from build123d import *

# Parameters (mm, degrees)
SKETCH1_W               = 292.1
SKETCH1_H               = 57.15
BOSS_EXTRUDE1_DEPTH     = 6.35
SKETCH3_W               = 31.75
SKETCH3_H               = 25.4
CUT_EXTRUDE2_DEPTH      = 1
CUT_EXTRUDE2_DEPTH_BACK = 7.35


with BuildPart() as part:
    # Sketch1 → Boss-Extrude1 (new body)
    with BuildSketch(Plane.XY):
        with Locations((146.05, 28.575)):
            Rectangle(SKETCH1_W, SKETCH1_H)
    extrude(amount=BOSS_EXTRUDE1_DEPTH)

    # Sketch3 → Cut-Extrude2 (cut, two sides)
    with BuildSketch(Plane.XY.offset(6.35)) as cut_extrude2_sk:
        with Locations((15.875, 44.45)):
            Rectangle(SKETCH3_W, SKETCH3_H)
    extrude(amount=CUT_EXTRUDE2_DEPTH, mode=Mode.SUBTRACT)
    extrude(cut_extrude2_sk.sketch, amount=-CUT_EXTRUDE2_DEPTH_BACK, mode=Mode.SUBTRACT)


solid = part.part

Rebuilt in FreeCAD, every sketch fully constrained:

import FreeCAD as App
import Part
import Sketcher
from FreeCAD import Vector
Q = App.Units.Quantity


def add_polygon(sketch, points):
    """Adds a closed chain of lines whose ends are joined by coincident constraints."""
    first, n = sketch.GeometryCount, len(points)
    for a, b in zip(points, points[1:] + points[:1]):
        sketch.addGeometry(Part.LineSegment(App.Vector(*a, 0), App.Vector(*b, 0)), False)
    for i in range(n):
        sketch.addConstraint(Sketcher.Constraint("Coincident", first + i, 2, first + (i + 1) % n, 1))

doc = App.newDocument("Part")
params = doc.addObject("Spreadsheet::Sheet", "Params")
for row, (alias, value) in enumerate([
    ("sketch1_width", "11.5 in"),
    ("sketch1_height", "2.25 in"),
    ("pad1_length", "0.25 in"),
    ("sketch2_height", "1 in"),
    ("sketch2_width", "1.25 in"),
], start=1):
    params.set(f"A{row}", alias)
    params.set(f"B{row}", "=" + value)
    params.setAlias(f"B{row}", alias)

body = doc.addObject("PartDesign::Body", "Body")

sketch1 = body.newObject("Sketcher::SketchObject", "Sketch")
sketch1.AttachmentSupport = (doc.getObject("XY_Plane"), [""])
sketch1.MapMode = "FlatFace"
add_polygon(sketch1, [(0, 57.15), (0, 0), (292.1, 0), (292.1, 57.15)])
sketch1.addConstraint(Sketcher.Constraint("Vertical", 0))
sketch1.addConstraint(Sketcher.Constraint("Horizontal", 1))
sketch1.addConstraint(Sketcher.Constraint("Vertical", 2))
sketch1.addConstraint(Sketcher.Constraint("Horizontal", 3))
sketch1.addConstraint(Sketcher.Constraint("Coincident", 0, 2, -1, 1))
sketch1.addConstraint(Sketcher.Constraint("DistanceX", 1, 1, 1, 2, Q("11.5 in")))
sketch1.addConstraint(Sketcher.Constraint("DistanceY", 0, 2, 0, 1, Q("2.25 in")))
sketch1.setExpression("Constraints[9]", "Params.sketch1_width")
sketch1.setExpression("Constraints[10]", "Params.sketch1_height")
pad1 = body.newObject("PartDesign::Pad", "Pad")
pad1.Profile = sketch1
pad1.setExpression("Length", "Params.pad1_length")

sketch2 = body.newObject("Sketcher::SketchObject", "Sketch001")
sketch2.AttachmentSupport = (doc.getObject("XY_Plane"), [""])
sketch2.MapMode = "FlatFace"
sketch2.AttachmentOffset = App.Placement(Vector(0, 0, 0.25 * 25.4), App.Rotation())
add_polygon(sketch2, [(0, 57.15), (0, 31.75), (31.75, 31.75), (31.75, 57.15)])
sketch2.addConstraint(Sketcher.Constraint("Vertical", 0))
sketch2.addConstraint(Sketcher.Constraint("Horizontal", 1))
sketch2.addConstraint(Sketcher.Constraint("Vertical", 2))
sketch2.addConstraint(Sketcher.Constraint("Horizontal", 3))
sketch2.addConstraint(Sketcher.Constraint("PointOnObject", 0, 2, -2))
sketch2.addConstraint(Sketcher.Constraint("DistanceY", 0, 2, 0, 1, Q("1 in")))
sketch2.addConstraint(Sketcher.Constraint("DistanceX", 1, 1, 1, 2, Q("1.25 in")))
sketch2.addConstraint(Sketcher.Constraint("DistanceY", -1, 1, 0, 2, Q("1.25 in")))
sketch2.setExpression("Constraints[9]", "Params.sketch2_height")
sketch2.setExpression("Constraints[10]", "Params.sketch2_width")
pocket1 = body.newObject("PartDesign::Pocket", "Pocket")
pocket1.Profile = sketch2
pocket1.Type = "ThroughAll"
pocket1.Midplane = True

doc.recompute()
